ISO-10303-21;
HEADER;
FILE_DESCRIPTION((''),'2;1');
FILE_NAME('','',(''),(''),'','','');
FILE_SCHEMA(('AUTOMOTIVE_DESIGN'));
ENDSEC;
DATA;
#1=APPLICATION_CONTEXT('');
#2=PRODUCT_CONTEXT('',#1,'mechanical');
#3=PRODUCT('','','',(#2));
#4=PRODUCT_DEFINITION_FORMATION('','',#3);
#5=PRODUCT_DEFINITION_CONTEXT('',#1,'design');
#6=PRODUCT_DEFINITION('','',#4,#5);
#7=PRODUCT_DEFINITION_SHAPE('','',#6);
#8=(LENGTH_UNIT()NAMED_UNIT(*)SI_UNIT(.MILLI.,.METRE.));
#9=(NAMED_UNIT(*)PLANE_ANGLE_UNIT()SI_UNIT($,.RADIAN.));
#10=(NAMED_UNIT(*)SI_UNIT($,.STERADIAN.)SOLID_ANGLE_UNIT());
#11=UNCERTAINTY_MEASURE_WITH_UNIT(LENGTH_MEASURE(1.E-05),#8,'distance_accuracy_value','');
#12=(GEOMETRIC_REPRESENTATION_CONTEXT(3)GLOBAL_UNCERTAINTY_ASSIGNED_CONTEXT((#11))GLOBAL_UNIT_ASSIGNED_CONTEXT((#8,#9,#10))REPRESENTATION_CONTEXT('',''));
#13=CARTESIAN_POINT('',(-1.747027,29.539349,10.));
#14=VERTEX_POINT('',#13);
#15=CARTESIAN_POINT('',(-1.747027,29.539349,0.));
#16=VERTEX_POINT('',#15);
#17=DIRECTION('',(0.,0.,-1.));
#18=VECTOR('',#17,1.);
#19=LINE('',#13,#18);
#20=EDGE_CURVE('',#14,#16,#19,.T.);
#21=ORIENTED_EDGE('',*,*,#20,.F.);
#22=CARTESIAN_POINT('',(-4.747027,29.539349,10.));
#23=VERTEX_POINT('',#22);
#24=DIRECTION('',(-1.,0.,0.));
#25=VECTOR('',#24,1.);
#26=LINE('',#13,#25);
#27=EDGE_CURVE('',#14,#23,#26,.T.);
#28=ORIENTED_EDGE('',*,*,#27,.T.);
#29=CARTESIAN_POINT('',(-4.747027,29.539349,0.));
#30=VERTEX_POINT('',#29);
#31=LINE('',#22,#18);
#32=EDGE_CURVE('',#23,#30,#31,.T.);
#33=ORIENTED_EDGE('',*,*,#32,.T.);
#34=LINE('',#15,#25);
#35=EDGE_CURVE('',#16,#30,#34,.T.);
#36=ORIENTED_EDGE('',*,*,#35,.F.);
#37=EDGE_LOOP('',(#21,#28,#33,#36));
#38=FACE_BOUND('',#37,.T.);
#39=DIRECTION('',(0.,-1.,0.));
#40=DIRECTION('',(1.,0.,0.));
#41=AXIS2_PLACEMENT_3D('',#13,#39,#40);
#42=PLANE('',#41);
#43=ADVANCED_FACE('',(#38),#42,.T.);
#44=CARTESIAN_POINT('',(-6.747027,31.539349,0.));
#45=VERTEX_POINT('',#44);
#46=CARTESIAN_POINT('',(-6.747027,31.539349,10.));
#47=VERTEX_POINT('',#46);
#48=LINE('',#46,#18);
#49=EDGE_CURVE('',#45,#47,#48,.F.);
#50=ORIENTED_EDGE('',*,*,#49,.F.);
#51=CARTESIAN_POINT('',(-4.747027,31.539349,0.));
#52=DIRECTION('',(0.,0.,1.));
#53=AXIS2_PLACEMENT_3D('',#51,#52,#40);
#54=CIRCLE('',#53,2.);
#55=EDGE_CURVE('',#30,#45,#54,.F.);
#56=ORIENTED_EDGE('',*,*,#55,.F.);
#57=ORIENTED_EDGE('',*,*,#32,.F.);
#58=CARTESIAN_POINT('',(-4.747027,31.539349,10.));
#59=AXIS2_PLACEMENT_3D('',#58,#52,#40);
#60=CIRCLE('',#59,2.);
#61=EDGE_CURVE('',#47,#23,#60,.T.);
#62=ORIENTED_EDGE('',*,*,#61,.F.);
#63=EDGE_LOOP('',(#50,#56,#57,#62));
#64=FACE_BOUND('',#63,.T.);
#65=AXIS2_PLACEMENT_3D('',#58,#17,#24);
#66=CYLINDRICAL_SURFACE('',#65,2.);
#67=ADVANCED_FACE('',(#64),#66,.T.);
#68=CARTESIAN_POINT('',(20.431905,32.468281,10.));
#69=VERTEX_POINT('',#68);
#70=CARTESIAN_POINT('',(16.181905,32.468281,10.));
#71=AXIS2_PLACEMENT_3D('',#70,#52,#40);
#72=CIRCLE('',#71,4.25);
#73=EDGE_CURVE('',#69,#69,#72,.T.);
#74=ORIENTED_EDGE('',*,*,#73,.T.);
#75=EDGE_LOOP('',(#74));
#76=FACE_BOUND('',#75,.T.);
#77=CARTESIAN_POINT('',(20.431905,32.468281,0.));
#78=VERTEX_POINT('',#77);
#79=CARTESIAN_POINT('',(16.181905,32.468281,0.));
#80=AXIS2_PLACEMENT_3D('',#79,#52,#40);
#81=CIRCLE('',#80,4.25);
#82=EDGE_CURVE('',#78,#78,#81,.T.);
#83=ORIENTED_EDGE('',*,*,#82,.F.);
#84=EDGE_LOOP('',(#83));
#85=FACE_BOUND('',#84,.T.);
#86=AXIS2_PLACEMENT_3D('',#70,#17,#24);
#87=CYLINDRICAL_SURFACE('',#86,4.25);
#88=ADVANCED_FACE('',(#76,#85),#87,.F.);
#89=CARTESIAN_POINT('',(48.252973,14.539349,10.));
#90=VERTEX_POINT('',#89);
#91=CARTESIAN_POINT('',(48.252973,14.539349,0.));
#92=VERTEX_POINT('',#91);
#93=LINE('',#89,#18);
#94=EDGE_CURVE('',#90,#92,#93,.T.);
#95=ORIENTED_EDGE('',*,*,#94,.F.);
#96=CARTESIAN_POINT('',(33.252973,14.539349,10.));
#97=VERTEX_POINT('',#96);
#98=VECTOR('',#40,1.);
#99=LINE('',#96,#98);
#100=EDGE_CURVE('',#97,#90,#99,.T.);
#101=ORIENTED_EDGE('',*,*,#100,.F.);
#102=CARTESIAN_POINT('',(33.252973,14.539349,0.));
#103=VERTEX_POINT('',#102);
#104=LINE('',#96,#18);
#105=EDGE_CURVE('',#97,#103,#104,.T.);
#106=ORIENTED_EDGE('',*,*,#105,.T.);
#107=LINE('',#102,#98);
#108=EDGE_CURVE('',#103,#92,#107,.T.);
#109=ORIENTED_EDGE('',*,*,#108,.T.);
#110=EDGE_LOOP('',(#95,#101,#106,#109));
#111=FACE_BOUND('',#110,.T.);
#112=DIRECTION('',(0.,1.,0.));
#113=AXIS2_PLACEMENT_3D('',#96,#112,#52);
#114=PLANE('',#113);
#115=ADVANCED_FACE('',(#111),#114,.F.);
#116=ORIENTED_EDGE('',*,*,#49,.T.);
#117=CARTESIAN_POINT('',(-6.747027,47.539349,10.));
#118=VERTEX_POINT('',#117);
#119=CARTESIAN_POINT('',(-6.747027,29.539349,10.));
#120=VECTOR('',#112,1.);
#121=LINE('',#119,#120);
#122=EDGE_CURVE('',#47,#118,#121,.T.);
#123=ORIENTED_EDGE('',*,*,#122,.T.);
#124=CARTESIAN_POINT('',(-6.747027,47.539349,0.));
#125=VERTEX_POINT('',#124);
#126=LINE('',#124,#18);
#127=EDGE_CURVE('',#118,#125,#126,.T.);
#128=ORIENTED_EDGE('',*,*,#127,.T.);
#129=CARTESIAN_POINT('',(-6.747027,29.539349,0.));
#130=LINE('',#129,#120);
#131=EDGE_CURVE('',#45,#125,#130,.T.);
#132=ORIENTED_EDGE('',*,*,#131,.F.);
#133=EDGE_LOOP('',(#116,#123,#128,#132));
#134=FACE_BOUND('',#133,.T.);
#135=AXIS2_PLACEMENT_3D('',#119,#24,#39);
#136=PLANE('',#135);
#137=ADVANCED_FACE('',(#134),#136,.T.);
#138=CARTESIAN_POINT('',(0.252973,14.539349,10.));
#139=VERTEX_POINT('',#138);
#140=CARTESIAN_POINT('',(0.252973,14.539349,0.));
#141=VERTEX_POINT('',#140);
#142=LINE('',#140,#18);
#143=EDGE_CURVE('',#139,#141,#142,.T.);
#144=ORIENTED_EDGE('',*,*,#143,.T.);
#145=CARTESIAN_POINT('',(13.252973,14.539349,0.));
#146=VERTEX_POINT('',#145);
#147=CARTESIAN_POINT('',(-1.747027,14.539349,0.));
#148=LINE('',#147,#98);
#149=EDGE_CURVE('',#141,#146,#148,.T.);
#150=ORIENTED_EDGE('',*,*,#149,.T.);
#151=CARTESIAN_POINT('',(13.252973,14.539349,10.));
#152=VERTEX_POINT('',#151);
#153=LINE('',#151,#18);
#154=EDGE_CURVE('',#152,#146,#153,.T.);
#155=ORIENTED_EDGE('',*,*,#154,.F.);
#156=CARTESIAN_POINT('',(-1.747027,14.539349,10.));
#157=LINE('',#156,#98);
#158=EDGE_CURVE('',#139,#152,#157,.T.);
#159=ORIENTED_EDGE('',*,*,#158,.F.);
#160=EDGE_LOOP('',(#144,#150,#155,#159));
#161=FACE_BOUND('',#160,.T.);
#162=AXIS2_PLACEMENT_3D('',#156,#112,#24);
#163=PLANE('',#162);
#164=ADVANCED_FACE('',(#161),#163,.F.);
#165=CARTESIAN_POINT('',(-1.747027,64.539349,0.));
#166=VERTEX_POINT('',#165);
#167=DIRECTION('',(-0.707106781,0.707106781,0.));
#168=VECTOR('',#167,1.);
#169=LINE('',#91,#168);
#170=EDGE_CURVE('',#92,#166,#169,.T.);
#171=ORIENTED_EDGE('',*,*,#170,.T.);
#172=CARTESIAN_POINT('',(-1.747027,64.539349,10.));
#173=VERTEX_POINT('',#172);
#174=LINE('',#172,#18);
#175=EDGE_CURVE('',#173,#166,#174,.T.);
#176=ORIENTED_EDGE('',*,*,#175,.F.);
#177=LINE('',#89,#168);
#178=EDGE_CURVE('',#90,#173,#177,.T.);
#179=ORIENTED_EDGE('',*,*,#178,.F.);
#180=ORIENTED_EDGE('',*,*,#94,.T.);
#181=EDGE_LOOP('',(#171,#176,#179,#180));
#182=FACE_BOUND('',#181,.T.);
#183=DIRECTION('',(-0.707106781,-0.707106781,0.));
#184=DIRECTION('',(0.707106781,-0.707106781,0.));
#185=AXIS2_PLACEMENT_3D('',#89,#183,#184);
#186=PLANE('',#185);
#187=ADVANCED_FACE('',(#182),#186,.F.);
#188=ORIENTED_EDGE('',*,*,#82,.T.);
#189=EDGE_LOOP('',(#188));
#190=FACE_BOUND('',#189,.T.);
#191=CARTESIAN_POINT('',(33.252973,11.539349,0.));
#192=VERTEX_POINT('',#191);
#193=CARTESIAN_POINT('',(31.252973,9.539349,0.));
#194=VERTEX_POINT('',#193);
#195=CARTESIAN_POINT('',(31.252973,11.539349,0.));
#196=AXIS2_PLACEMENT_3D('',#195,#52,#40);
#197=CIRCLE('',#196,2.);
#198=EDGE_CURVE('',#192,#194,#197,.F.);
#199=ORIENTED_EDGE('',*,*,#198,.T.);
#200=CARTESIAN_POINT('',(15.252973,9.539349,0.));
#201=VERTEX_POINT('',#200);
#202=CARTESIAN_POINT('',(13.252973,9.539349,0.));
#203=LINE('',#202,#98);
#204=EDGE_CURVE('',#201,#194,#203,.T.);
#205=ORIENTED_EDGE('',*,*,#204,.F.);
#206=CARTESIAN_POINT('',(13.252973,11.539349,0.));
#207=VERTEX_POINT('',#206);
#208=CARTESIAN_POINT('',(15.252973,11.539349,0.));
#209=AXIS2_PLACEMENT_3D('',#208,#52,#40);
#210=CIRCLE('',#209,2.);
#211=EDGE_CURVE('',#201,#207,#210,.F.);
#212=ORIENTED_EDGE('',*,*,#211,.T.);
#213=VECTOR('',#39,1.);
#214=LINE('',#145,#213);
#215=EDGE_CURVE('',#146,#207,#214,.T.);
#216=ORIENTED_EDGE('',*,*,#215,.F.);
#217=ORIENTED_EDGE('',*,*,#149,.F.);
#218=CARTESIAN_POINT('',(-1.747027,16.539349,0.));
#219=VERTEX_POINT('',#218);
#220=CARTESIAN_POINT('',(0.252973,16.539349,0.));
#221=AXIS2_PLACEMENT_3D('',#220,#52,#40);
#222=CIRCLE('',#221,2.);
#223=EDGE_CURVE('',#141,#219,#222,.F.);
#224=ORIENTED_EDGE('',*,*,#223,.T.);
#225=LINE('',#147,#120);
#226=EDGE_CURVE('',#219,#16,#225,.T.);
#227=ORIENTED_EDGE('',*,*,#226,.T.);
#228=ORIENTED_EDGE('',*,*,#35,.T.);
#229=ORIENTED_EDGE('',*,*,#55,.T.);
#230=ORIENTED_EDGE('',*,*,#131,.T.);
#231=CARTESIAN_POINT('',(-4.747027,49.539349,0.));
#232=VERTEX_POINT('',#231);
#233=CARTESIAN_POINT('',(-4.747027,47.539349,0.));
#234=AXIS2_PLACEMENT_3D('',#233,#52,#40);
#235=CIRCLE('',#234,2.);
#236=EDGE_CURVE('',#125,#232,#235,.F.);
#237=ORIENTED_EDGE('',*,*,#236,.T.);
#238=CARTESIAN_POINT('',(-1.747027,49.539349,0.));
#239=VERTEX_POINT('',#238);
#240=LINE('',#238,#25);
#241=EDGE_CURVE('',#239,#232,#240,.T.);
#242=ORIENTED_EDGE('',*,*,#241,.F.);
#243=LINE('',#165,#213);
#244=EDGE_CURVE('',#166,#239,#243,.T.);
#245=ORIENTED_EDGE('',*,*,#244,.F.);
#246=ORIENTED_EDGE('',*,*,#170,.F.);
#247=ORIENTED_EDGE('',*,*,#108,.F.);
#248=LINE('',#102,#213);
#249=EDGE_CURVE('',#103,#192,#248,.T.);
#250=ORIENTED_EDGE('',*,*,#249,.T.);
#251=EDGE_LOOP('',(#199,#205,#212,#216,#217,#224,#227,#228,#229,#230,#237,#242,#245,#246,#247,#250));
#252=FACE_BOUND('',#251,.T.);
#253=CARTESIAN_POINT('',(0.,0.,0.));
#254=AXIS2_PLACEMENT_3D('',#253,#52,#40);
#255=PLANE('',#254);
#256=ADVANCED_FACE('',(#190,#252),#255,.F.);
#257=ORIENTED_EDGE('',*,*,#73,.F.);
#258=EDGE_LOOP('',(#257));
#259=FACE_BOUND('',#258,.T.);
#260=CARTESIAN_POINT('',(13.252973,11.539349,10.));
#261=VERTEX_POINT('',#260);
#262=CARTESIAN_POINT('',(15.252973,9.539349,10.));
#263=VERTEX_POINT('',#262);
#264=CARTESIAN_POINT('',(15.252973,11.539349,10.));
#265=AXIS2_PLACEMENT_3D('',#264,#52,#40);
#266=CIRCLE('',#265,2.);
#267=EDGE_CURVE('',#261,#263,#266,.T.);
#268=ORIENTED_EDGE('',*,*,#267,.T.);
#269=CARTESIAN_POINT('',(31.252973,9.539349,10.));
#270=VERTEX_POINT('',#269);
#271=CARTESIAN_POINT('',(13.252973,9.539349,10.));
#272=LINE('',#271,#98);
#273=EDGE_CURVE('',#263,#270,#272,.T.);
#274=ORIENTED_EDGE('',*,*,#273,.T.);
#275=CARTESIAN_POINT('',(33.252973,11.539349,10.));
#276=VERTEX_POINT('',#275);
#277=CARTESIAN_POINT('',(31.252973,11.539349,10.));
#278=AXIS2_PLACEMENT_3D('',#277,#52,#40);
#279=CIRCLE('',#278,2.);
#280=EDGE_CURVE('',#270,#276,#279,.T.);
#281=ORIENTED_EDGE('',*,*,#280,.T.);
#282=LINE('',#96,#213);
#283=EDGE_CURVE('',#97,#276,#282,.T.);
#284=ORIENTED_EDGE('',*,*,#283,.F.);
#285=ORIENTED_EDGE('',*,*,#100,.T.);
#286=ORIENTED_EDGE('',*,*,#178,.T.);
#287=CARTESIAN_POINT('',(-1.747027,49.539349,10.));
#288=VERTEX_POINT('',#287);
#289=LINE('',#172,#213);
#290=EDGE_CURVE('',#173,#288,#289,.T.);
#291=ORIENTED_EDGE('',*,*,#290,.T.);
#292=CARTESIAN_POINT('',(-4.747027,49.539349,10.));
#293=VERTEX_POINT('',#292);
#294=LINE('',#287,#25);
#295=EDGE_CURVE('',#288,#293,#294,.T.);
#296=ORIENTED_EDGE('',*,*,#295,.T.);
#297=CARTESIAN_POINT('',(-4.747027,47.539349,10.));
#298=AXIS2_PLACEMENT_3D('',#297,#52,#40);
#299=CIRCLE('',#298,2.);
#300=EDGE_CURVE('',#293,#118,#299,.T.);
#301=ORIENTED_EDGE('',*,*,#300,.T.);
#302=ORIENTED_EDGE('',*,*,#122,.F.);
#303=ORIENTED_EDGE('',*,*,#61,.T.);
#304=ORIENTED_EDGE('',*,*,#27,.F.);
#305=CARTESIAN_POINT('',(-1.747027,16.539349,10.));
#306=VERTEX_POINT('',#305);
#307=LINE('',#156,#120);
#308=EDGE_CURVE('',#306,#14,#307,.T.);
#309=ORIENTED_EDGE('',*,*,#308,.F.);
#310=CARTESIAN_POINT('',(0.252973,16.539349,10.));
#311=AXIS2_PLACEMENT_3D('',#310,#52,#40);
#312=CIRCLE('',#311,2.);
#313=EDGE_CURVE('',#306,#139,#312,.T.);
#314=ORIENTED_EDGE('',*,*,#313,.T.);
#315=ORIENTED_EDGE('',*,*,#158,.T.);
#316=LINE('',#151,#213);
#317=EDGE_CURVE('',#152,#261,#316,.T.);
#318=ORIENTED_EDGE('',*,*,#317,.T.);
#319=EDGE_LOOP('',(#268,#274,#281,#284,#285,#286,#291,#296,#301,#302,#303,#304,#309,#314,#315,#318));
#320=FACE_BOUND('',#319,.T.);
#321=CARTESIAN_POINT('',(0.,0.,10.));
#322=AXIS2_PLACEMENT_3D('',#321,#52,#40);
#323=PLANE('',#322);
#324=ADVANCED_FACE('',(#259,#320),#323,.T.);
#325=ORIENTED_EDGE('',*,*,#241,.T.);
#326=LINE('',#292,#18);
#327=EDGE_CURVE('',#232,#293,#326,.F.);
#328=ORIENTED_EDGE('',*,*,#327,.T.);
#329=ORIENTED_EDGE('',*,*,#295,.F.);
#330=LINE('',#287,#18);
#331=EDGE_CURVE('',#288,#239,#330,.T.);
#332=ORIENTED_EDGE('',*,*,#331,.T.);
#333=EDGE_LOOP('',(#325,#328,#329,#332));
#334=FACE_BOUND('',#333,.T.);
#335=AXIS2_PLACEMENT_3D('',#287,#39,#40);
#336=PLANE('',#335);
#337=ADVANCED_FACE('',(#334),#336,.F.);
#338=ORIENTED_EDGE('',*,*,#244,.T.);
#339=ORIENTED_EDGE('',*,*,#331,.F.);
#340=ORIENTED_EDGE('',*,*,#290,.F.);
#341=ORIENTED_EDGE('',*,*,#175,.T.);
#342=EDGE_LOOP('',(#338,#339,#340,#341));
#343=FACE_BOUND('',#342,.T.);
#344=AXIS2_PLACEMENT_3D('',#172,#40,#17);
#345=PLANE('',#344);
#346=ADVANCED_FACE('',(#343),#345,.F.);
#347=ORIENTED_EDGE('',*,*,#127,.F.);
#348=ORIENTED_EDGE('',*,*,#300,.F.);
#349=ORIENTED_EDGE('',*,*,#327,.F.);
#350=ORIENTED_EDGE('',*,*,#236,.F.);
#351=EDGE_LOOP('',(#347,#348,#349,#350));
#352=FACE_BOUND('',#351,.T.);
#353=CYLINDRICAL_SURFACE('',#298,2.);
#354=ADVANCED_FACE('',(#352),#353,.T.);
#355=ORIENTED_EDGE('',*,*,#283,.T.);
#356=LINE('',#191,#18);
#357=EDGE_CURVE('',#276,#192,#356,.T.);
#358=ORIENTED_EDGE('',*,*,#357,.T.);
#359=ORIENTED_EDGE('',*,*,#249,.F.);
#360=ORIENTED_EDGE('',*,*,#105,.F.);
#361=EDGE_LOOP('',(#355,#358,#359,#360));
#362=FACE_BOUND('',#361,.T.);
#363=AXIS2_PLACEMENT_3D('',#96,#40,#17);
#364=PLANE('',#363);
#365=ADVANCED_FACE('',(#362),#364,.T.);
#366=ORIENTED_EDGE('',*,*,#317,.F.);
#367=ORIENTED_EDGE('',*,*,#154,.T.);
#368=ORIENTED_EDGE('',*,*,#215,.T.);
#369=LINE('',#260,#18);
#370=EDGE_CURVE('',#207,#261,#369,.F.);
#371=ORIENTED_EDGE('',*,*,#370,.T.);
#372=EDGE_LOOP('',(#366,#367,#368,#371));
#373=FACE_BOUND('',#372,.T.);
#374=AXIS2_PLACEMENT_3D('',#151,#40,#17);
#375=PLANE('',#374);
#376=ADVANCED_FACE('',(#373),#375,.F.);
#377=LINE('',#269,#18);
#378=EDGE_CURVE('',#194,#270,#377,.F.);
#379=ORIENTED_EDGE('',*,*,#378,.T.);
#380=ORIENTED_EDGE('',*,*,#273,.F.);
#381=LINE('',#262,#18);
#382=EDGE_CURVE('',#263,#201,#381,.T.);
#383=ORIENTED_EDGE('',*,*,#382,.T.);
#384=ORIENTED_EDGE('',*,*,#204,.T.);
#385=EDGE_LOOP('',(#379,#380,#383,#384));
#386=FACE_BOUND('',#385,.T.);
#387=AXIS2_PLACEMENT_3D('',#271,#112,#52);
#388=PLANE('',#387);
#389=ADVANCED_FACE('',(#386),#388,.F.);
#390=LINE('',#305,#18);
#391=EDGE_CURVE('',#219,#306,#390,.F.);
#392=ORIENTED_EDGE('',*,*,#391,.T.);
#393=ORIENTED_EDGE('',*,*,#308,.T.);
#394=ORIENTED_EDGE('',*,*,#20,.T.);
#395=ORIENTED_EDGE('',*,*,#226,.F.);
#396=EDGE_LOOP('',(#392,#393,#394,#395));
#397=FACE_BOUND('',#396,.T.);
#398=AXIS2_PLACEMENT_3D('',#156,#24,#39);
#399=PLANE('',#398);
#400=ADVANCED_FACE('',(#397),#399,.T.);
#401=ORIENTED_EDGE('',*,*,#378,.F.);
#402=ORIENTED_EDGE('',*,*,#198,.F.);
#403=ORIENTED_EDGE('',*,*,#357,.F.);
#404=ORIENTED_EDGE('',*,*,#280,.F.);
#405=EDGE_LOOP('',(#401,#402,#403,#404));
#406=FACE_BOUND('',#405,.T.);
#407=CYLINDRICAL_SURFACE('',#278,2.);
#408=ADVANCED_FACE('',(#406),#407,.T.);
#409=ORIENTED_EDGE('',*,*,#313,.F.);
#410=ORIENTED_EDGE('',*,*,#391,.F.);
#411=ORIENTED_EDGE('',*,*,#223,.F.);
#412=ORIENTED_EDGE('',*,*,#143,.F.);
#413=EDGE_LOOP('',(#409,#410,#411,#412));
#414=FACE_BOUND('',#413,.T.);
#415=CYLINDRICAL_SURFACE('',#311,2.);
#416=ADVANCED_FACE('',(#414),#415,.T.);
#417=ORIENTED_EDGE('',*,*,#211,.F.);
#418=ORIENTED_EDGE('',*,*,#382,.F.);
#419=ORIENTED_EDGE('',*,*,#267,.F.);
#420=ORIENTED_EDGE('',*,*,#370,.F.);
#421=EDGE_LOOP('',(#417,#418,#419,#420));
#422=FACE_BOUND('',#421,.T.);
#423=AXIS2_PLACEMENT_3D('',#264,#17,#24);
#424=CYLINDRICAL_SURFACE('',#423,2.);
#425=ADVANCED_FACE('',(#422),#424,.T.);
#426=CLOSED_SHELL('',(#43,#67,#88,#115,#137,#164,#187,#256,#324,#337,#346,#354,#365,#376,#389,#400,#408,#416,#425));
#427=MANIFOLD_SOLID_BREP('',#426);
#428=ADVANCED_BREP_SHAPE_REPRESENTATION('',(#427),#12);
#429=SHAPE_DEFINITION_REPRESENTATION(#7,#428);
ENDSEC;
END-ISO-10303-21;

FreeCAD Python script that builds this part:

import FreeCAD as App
import Part
import Sketcher

V = App.Vector


def edges_at(feature, points):
    """Names of the edges that pass closest to the given points."""
    edges = feature.Shape.Edges
    near = lambda p: min(range(len(edges)), key=lambda i: edges[i].distToShape(Part.Vertex(*p))[0])
    return sorted({f"Edge{near(p) + 1}" for p in points})

doc = App.newDocument("Part")
body = doc.addObject("PartDesign::Body", "Body")

# Sketch on XY plane
sketch1 = body.newObject("Sketcher::SketchObject", "Sketch")
sketch1.AttachmentSupport = (doc.getObject("XY_Plane"), [""])
sketch1.MapMode = "FlatFace"
sketch1.addGeometry(Part.LineSegment(V(48.3, 14.5, 0), V(-1.7, 64.5, 0)), False)
sketch1.addGeometry(Part.LineSegment(V(-1.7, 64.5, 0), V(-1.7, 49.5, 0)), False)
sketch1.addGeometry(Part.LineSegment(V(-1.7, 49.5, 0), V(-6.7, 49.5, 0)), False)
sketch1.addGeometry(Part.LineSegment(V(-6.7, 49.5, 0), V(-6.7, 29.5, 0)), False)
sketch1.addGeometry(Part.LineSegment(V(-6.7, 29.5, 0), V(-1.7, 29.5, 0)), False)
sketch1.addGeometry(Part.LineSegment(V(-1.7, 29.5, 0), V(-1.7, 14.5, 0)), False)
sketch1.addGeometry(Part.LineSegment(V(-1.7, 14.5, 0), V(13.3, 14.5, 0)), False)
sketch1.addGeometry(Part.LineSegment(V(13.3, 14.5, 0), V(13.3, 9.5, 0)), False)
sketch1.addGeometry(Part.LineSegment(V(13.3, 9.5, 0), V(33.3, 9.5, 0)), False)
sketch1.addGeometry(Part.LineSegment(V(33.3, 9.5, 0), V(33.3, 14.5, 0)), False)
sketch1.addGeometry(Part.LineSegment(V(33.3, 14.5, 0), V(48.3, 14.5, 0)), False)
sketch1.addGeometry(Part.Circle(V(16.2, 32.5, 0), V(0, 0, 1), 4.2), False)
sketch1.addConstraint(Sketcher.Constraint("Coincident", 0, 2, 1, 1))
sketch1.addConstraint(Sketcher.Constraint("Coincident", 1, 2, 2, 1))
sketch1.addConstraint(Sketcher.Constraint("Coincident", 2, 2, 3, 1))
sketch1.addConstraint(Sketcher.Constraint("Coincident", 3, 2, 4, 1))
sketch1.addConstraint(Sketcher.Constraint("Coincident", 4, 2, 5, 1))
sketch1.addConstraint(Sketcher.Constraint("Coincident", 5, 2, 6, 1))
sketch1.addConstraint(Sketcher.Constraint("Coincident", 6, 2, 7, 1))
sketch1.addConstraint(Sketcher.Constraint("Coincident", 7, 2, 8, 1))
sketch1.addConstraint(Sketcher.Constraint("Coincident", 8, 2, 9, 1))
sketch1.addConstraint(Sketcher.Constraint("Coincident", 9, 2, 10, 1))
sketch1.addConstraint(Sketcher.Constraint("Coincident", 10, 2, 0, 1))
sketch1.addConstraint(Sketcher.Constraint("Vertical", 1))
sketch1.addConstraint(Sketcher.Constraint("Horizontal", 2))
sketch1.addConstraint(Sketcher.Constraint("Vertical", 3))
sketch1.addConstraint(Sketcher.Constraint("Horizontal", 4))
sketch1.addConstraint(Sketcher.Constraint("Vertical", 5))
sketch1.addConstraint(Sketcher.Constraint("Horizontal", 6))
sketch1.addConstraint(Sketcher.Constraint("Vertical", 7))
sketch1.addConstraint(Sketcher.Constraint("Horizontal", 8))
sketch1.addConstraint(Sketcher.Constraint("Vertical", 9))
sketch1.addConstraint(Sketcher.Constraint("Horizontal", 10))
sketch1.addConstraint(Sketcher.Constraint("Horizontal", 6, 2, 9, 2))
sketch1.addConstraint(Sketcher.Constraint("Vertical", 1, 2, 4, 2))
sketch1.addConstraint(Sketcher.Constraint("Equal", 6, 10))
sketch1.addConstraint(Sketcher.Constraint("Equal", 10, 1))
sketch1.addConstraint(Sketcher.Constraint("Equal", 8, 3))
sketch1.addConstraint(Sketcher.Constraint("Equal", 1, 5))
sketch1.addConstraint(Sketcher.Constraint("Equal", 4, 7))
sketch1.addConstraint(Sketcher.Constraint("Diameter", 11, 8.5))
sketch1.addConstraint(Sketcher.Constraint("DistanceX", 2, 2, 2, 1, 5.0))
sketch1.addConstraint(Sketcher.Constraint("DistanceX", 6, 1, 6, 2, 15.0))
sketch1.addConstraint(Sketcher.Constraint("DistanceX", 8, 1, 8, 2, 20.0))
sketch1.addConstraint(Sketcher.Constraint("DistanceY", -1, 1, 11, 3, 32.468281))
sketch1.addConstraint(Sketcher.Constraint("DistanceY", -1, 1, 0, 2, 64.539349))
sketch1.addConstraint(Sketcher.Constraint("DistanceX", -1, 1, 11, 3, 16.181905))
sketch1.addConstraint(Sketcher.Constraint("DistanceX", 0, 2, -1, 1, 1.747027))
pad1 = body.newObject("PartDesign::Pad", "Pad")
pad1.Profile = sketch1
pad1.Length = 10
doc.recompute()

fillet = body.newObject("PartDesign::Fillet", "Fillet")
fillet.Base = (pad1, edges_at(pad1, [
    (-1.747, 14.539, 5),
    (13.253, 9.539, 5),
    (33.253, 9.539, 5),
    (-6.747, 49.539, 5),
    (-6.747, 29.539, 5),
]))
fillet.Radius = 2

doc.recompute()
